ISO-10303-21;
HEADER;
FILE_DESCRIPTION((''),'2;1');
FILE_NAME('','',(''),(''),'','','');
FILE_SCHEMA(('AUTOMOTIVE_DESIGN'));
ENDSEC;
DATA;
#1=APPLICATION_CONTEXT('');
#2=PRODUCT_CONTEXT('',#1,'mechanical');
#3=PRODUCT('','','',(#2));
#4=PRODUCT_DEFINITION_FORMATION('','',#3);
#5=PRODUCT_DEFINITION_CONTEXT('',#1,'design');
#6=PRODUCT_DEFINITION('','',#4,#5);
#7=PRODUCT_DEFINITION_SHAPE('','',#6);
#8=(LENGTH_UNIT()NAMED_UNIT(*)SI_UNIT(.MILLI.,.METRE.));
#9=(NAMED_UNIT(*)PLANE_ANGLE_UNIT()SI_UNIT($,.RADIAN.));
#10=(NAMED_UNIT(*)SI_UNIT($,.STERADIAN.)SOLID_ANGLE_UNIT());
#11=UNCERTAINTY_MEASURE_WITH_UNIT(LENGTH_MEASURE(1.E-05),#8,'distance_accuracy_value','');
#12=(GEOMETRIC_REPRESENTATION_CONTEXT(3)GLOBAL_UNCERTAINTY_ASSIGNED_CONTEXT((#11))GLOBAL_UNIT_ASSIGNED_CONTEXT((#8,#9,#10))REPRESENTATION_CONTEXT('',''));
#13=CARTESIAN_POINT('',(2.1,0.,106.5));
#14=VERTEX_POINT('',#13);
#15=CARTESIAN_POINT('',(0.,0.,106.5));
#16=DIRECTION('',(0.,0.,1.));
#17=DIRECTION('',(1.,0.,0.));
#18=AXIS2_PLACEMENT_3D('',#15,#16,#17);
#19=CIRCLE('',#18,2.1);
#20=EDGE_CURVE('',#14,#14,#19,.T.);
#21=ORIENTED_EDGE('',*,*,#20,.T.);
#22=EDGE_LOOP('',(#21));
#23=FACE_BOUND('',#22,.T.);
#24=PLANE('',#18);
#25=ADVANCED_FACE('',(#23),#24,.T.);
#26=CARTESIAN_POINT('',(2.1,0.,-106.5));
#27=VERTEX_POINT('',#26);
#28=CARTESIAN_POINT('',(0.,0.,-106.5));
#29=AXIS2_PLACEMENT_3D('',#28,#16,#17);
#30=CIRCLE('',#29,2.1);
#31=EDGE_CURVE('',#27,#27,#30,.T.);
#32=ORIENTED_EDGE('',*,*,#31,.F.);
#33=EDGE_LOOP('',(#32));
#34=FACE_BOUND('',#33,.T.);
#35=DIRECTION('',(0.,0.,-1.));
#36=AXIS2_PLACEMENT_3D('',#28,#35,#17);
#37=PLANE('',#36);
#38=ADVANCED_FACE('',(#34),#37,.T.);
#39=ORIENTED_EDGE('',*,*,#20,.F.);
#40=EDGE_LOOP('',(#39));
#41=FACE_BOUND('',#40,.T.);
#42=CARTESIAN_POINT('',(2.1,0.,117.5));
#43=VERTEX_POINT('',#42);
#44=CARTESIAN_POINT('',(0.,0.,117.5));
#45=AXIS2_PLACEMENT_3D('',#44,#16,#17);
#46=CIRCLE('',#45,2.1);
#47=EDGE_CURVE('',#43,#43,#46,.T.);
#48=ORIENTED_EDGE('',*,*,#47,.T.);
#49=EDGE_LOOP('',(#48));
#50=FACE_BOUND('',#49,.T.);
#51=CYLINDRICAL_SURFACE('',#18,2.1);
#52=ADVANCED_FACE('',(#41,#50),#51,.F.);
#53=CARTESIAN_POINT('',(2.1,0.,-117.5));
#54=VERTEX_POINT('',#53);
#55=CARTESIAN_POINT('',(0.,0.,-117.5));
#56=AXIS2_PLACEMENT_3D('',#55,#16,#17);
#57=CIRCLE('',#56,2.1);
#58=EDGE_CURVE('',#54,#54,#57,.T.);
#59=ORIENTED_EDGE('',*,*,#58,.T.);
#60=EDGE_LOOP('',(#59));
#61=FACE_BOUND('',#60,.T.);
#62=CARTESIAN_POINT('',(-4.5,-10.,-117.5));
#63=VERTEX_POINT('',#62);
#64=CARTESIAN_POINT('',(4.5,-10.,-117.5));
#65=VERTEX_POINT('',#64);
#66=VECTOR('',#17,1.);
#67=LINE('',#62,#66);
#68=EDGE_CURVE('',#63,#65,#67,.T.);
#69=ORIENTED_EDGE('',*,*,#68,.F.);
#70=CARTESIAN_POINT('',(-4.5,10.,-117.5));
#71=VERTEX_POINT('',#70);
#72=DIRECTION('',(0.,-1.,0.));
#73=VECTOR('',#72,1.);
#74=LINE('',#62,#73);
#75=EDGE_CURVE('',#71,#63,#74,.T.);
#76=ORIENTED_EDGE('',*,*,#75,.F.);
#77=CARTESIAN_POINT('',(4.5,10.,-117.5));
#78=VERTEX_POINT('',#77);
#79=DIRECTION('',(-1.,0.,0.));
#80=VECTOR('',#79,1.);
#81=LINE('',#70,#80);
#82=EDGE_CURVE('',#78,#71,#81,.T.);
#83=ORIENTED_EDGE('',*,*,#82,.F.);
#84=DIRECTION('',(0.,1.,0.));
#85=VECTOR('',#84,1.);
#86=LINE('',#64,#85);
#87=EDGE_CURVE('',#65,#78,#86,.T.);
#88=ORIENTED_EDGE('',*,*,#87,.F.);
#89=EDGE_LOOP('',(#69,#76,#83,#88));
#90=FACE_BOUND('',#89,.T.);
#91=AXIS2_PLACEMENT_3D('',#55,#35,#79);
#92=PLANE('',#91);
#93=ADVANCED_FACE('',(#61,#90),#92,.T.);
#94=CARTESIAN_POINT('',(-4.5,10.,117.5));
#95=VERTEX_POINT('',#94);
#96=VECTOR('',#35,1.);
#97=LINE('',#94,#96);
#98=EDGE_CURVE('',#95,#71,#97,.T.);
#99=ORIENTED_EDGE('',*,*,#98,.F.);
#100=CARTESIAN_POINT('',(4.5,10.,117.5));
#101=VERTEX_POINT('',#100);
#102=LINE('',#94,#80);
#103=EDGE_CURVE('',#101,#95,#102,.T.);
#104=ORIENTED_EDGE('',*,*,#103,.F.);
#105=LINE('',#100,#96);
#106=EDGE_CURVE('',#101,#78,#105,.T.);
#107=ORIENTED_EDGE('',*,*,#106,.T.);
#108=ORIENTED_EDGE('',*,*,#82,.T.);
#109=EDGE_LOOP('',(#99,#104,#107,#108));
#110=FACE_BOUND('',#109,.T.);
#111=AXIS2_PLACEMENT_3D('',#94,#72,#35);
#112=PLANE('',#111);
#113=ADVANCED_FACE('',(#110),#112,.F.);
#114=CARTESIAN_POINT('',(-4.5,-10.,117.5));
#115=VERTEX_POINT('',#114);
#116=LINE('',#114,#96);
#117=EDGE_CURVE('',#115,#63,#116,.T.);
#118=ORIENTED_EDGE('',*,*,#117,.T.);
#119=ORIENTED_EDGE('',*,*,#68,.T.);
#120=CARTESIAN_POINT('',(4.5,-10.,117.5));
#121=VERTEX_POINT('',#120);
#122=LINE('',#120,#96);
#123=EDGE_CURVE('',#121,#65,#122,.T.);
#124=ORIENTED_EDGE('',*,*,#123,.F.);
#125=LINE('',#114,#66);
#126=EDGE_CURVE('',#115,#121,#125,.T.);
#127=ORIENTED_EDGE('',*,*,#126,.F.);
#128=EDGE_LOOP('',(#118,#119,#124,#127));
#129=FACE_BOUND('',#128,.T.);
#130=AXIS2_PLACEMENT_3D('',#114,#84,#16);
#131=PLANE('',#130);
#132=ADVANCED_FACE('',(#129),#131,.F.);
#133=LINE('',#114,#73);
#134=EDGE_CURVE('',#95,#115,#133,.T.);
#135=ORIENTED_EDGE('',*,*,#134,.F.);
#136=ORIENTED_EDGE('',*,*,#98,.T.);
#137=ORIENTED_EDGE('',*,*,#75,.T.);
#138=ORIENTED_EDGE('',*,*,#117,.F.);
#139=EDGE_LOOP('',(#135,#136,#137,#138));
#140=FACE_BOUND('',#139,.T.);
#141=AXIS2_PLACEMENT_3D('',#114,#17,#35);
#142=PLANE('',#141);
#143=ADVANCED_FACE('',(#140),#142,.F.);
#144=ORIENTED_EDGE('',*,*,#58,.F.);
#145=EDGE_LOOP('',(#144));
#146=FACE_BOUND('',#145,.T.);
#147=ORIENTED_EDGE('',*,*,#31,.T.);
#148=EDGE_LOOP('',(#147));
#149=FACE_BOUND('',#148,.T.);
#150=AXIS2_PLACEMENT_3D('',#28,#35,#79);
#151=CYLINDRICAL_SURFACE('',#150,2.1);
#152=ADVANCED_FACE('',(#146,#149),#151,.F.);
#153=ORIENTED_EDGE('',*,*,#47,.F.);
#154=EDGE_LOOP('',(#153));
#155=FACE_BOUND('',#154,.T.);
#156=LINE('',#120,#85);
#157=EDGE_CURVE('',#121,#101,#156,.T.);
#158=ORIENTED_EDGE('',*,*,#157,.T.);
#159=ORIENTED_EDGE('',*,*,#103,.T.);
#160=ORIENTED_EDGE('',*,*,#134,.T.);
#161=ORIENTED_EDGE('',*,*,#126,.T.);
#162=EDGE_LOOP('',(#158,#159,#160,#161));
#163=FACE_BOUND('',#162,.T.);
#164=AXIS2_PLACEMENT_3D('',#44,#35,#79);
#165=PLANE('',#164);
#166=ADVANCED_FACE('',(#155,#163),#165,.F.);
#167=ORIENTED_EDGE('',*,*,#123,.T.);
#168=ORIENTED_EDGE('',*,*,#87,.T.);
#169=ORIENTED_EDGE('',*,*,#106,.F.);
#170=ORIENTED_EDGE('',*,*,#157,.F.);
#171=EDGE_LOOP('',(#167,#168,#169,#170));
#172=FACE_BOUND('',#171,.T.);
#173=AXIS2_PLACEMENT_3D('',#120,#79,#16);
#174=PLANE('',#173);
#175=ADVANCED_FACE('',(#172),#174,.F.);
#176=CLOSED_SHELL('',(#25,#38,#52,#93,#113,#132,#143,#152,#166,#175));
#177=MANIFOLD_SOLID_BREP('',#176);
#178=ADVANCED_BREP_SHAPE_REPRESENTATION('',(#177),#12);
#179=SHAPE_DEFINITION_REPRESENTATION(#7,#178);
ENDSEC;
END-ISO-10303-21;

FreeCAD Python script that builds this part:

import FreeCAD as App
import Part
import Sketcher

V = App.Vector


def add_polygon(sketch, points):
    """Adds a closed chain of lines whose ends are joined by coincident constraints."""
    first, n = sketch.GeometryCount, len(points)
    for a, b in zip(points, points[1:] + points[:1]):
        sketch.addGeometry(Part.LineSegment(App.Vector(*a, 0), App.Vector(*b, 0)), False)
    for i in range(n):
        sketch.addConstraint(Sketcher.Constraint("Coincident", first + i, 2, first + (i + 1) % n, 1))

doc = App.newDocument("Part")
body = doc.addObject("PartDesign::Body", "Body")

# Sketch on XY plane
sketch1 = body.newObject("Sketcher::SketchObject", "Sketch")
sketch1.AttachmentSupport = (doc.getObject("XY_Plane"), [""])
sketch1.MapMode = "FlatFace"
add_polygon(sketch1, [(-4, 10), (-4, -10), (4, -10), (4, 10)])  # lines 0-3
sketch1.addConstraint(Sketcher.Constraint("Vertical", 0))
sketch1.addConstraint(Sketcher.Constraint("Horizontal", 1))
sketch1.addConstraint(Sketcher.Constraint("Vertical", 2))
sketch1.addConstraint(Sketcher.Constraint("Horizontal", 3))
sketch1.addConstraint(Sketcher.Constraint("Symmetric", 0, 2, 2, 2, -1, 1))
sketch1.addConstraint(Sketcher.Constraint("DistanceX", 1, 1, 1, 2, 9.0))
sketch1.addConstraint(Sketcher.Constraint("DistanceY", 0, 2, 0, 1, 20.0))
pad1 = body.newObject("PartDesign::Pad", "Pad")
pad1.Profile = sketch1
pad1.Length = 235
pad1.Midplane = True

# Sketch on XY plane
sketch2 = body.newObject("Sketcher::SketchObject", "Sketch001")
sketch2.AttachmentSupport = (doc.getObject("XY_Plane"), [""])
sketch2.MapMode = "FlatFace"
sketch2.AttachmentOffset = App.Placement(V(0, 0, 117.5), App.Rotation())
sketch2.addGeometry(Part.Circle(V(0, 0, 0), V(0, 0, 1), 2.1), False)
sketch2.addConstraint(Sketcher.Constraint("Coincident", 0, 3, -1, 1))
sketch2.addConstraint(Sketcher.Constraint("Diameter", 0, 4.2))
pocket1 = body.newObject("PartDesign::Pocket", "Pocket")
pocket1.Profile = sketch2
pocket1.Length = 11
doc.recompute()

mirrored = body.newObject("PartDesign::Mirrored", "Mirrored")
mirrored.Originals = [pocket1]
mirrored.MirrorPlane = (doc.getObject("XY_Plane"), [""])
body.Tip = mirrored

doc.recompute()
